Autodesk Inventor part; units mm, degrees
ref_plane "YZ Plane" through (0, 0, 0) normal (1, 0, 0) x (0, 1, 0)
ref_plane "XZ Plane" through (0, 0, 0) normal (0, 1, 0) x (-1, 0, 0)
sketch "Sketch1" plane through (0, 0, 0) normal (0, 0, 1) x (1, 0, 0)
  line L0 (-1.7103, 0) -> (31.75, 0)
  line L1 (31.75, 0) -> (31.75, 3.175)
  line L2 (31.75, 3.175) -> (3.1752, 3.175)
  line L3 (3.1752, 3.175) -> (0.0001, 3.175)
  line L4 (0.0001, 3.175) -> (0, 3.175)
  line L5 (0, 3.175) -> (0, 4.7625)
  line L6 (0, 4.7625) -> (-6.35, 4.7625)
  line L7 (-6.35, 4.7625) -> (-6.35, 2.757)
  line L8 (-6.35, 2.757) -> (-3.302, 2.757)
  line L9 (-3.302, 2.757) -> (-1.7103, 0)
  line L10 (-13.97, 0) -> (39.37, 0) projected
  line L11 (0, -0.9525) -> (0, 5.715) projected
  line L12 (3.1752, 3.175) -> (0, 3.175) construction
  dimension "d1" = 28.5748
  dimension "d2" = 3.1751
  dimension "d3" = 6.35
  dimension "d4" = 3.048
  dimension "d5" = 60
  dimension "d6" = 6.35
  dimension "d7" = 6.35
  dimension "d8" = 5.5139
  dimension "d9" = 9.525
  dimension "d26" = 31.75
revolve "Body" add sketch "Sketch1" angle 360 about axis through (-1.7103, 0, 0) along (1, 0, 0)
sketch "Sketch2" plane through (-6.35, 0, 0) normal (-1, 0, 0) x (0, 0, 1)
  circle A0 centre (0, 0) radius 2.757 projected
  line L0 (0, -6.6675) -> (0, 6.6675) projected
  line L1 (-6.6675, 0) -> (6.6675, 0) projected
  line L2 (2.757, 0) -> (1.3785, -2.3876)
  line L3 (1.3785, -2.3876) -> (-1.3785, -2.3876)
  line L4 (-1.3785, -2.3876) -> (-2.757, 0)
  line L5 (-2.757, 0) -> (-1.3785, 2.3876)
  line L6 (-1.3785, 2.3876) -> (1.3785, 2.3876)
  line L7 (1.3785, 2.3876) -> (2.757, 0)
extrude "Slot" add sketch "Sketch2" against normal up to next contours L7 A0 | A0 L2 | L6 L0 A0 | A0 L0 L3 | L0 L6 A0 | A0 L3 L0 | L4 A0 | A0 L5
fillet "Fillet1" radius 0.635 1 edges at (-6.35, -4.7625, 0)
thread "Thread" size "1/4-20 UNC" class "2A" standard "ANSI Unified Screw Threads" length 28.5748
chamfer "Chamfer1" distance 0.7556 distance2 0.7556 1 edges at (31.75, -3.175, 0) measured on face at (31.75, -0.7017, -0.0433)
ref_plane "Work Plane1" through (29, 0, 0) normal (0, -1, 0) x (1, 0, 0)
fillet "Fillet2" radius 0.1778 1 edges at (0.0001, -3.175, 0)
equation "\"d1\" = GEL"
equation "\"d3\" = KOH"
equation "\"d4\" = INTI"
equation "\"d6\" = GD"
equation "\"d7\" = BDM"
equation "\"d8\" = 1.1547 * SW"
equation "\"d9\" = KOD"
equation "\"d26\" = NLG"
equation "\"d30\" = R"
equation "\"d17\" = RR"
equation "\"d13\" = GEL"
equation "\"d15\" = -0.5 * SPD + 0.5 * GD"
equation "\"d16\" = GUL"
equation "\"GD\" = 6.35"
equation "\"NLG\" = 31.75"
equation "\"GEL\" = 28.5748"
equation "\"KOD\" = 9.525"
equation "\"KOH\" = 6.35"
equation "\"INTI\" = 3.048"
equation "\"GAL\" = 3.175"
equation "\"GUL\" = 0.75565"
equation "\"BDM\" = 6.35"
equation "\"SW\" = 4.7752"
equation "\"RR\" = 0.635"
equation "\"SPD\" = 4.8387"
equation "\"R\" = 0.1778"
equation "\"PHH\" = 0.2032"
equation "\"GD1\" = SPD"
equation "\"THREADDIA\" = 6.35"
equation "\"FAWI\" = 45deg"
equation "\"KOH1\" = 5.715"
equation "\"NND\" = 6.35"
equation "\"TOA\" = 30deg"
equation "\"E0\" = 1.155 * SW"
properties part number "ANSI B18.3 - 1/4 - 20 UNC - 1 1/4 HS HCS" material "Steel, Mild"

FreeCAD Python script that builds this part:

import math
import FreeCAD as App
import Part
import Sketcher
from FreeCAD import Vector
Q = App.Units.Quantity


def edges_at(feature, points):
    """Names of the edges that pass closest to the given points."""
    edges = feature.Shape.Edges
    near = lambda p: min(range(len(edges)), key=lambda i: edges[i].distToShape(Part.Vertex(*p))[0])
    return sorted({f"Edge{near(p) + 1}" for p in points})

doc = App.newDocument("Part")
params = doc.addObject("Spreadsheet::Sheet", "Params")
for row, (alias, value) in enumerate([
    ("sketch1_width", "1.25 in"),
    ("sketch1_width2", "0.25 in"),
    ("sketch1_width3", "0.12 in"),
    ("sketch1_height", "0.125 in"),
    ("sketch1_height2", "0.0625 in"),
    ("revolution_angle", "360 deg"),
    ("fillet_radius", "0.025 in"),
    ("chamfer_size", "0.7556 mm"),
    ("chamfer_size2", "0.7556 mm"),
    ("fillet2_radius", "0.007 in"),
], start=1):
    params.set(f"A{row}", alias)
    params.set(f"B{row}", "=" + value)
    params.setAlias(f"B{row}", alias)

body = doc.addObject("PartDesign::Body", "Body")

# Sketch on XY plane
sketch1 = body.newObject("Sketcher::SketchObject", "Sketch")
sketch1.AttachmentSupport = (doc.getObject("XY_Plane"), [""])
sketch1.MapMode = "FlatFace"
sketch1.addGeometry(Part.LineSegment(Vector(-3.302, 2.757, 0), Vector(-1.7103, 0, 0)), False)
sketch1.addGeometry(Part.LineSegment(Vector(-1.7103, 0, 0), Vector(31.75, 0, 0)), False)
sketch1.addGeometry(Part.LineSegment(Vector(31.75, 0, 0), Vector(31.75, 3.175, 0)), False)
sketch1.addGeometry(Part.LineSegment(Vector(31.75, 3.175, 0), Vector(0.0001, 3.175, 0)), False)
sketch1.addGeometry(Part.LineSegment(Vector(0.0001, 3.175, 0), Vector(0, 4.7625, 0)), False)
sketch1.addGeometry(Part.LineSegment(Vector(0, 4.7625, 0), Vector(-6.35, 4.7625, 0)), False)
sketch1.addGeometry(Part.LineSegment(Vector(-6.35, 4.7625, 0), Vector(-6.35, 2.757, 0)), False)
sketch1.addGeometry(Part.LineSegment(Vector(-6.35, 2.757, 0), Vector(-3.302, 2.757, 0)), False)
sketch1.addConstraint(Sketcher.Constraint("Coincident", 0, 2, 1, 1))
sketch1.addConstraint(Sketcher.Constraint("Coincident", 1, 2, 2, 1))
sketch1.addConstraint(Sketcher.Constraint("Coincident", 2, 2, 3, 1))
sketch1.addConstraint(Sketcher.Constraint("Coincident", 3, 2, 4, 1))
sketch1.addConstraint(Sketcher.Constraint("Coincident", 4, 2, 5, 1))
sketch1.addConstraint(Sketcher.Constraint("Coincident", 5, 2, 6, 1))
sketch1.addConstraint(Sketcher.Constraint("Coincident", 6, 2, 7, 1))
sketch1.addConstraint(Sketcher.Constraint("Coincident", 7, 2, 0, 1))
sketch1.addConstraint(Sketcher.Constraint("Horizontal", 1))
sketch1.addConstraint(Sketcher.Constraint("Vertical", 2))
sketch1.addConstraint(Sketcher.Constraint("Horizontal", 3))
sketch1.addConstraint(Sketcher.Constraint("Vertical", 4))
sketch1.addConstraint(Sketcher.Constraint("Horizontal", 5))
sketch1.addConstraint(Sketcher.Constraint("Vertical", 6))
sketch1.addConstraint(Sketcher.Constraint("Horizontal", 7))
sketch1.addConstraint(Sketcher.Constraint("PointOnObject", 0, 2, -1))
sketch1.addConstraint(Sketcher.Constraint("PointOnObject", 3, 2, -2))
sketch1.addConstraint(Sketcher.Constraint("DistanceX", 3, 2, 3, 1, Q("1.25 in")))
sketch1.addConstraint(Sketcher.Constraint("DistanceX", 5, 2, 5, 1, Q("0.25 in")))
sketch1.addConstraint(Sketcher.Constraint("DistanceX", 7, 1, 7, 2, Q("0.12 in")))
sketch1.addConstraint(Sketcher.Constraint("DistanceY", 2, 1, 2, 2, Q("0.125 in")))
sketch1.addConstraint(Sketcher.Constraint("Angle", 0, Q("-60.0009 deg")))
sketch1.addConstraint(Sketcher.Constraint("DistanceY", 4, 1, 4, 2, Q("0.0625 in")))
sketch1.addConstraint(Sketcher.Constraint("DistanceX", 1, 1, 1, 2, Q("33.4603 mm")))
sketch1.setExpression("Constraints[17]", "Params.sketch1_width")
sketch1.setExpression("Constraints[18]", "Params.sketch1_width2")
sketch1.setExpression("Constraints[19]", "Params.sketch1_width3")
sketch1.setExpression("Constraints[20]", "Params.sketch1_height")
sketch1.setExpression("Constraints[22]", "Params.sketch1_height2")
revolution = body.newObject("PartDesign::Revolution", "Revolution")
revolution.Profile = sketch1
revolution.ReferenceAxis = (sketch1, ["H_Axis"])
revolution.setExpression("Angle", "Params.revolution_angle")

# Sketch on YZ plane
sketch2 = body.newObject("Sketcher::SketchObject", "Sketch001")
sketch2.AttachmentSupport = (doc.getObject("YZ_Plane"), [""])
sketch2.MapMode = "FlatFace"
sketch2.AttachmentOffset = App.Placement(Vector(0, 0, -0.25 * 25.4), App.Rotation())
sketch2.addGeometry(Part.LineSegment(Vector(2.3876, 1.3785, 0), Vector(0, 2.757, 0)), False)
sketch2.addGeometry(Part.ArcOfCircle(Part.Circle(Vector(0, 0, 0), Vector(0, 0, 1), 2.757), math.radians(30.000333), math.radians(90)), False)
sketch2.addGeometry(Part.ArcOfCircle(Part.Circle(Vector(0, 0, 0), Vector(0, 0, 1), 2.757), math.radians(90), math.radians(149.999667)), False)
sketch2.addGeometry(Part.LineSegment(Vector(0, 2.757, 0), Vector(-2.3876, 1.3785, 0)), False)
sketch2.addGeometry(Part.ArcOfCircle(Part.Circle(Vector(0, 0, 0), Vector(0, 0, 1), 2.757), math.radians(-30.000333), math.radians(30.000333)), False)
sketch2.addGeometry(Part.LineSegment(Vector(2.3876, 1.3785, 0), Vector(2.3876, -1.3785, 0)), False)
sketch2.addGeometry(Part.LineSegment(Vector(-2.3876, 1.3785, 0), Vector(-2.3876, -1.3785, 0)), False)
sketch2.addGeometry(Part.ArcOfCircle(Part.Circle(Vector(0, 0, 0), Vector(0, 0, 1), 2.757), math.radians(149.999667), math.radians(210.000333)), False)
sketch2.addGeometry(Part.LineSegment(Vector(-2.3876, -1.3785, 0), Vector(0, -2.757, 0)), False)
sketch2.addGeometry(Part.ArcOfCircle(Part.Circle(Vector(0, 0, 0), Vector(0, 0, 1), 2.757), math.radians(-149.999667), math.radians(-90)), False)
sketch2.addGeometry(Part.ArcOfCircle(Part.Circle(Vector(0, 0, 0), Vector(0, 0, 1), 2.757), math.radians(-90), math.radians(-30.000333)), False)
sketch2.addGeometry(Part.LineSegment(Vector(0, -2.757, 0), Vector(2.3876, -1.3785, 0)), False)
sketch2.addConstraint(Sketcher.Constraint("Coincident", 0, 1, 1, 1))
sketch2.addConstraint(Sketcher.Constraint("Coincident", 1, 2, 0, 2))
sketch2.addConstraint(Sketcher.Constraint("Coincident", 2, 1, 3, 1))
sketch2.addConstraint(Sketcher.Constraint("Coincident", 3, 2, 2, 2))
sketch2.addConstraint(Sketcher.Constraint("Coincident", 4, 1, 5, 2))
sketch2.addConstraint(Sketcher.Constraint("Coincident", 5, 1, 4, 2))
sketch2.addConstraint(Sketcher.Constraint("Coincident", 6, 1, 7, 1))
sketch2.addConstraint(Sketcher.Constraint("Coincident", 7, 2, 6, 2))
sketch2.addConstraint(Sketcher.Constraint("Coincident", 8, 1, 9, 1))
sketch2.addConstraint(Sketcher.Constraint("Coincident", 9, 2, 8, 2))
sketch2.addConstraint(Sketcher.Constraint("Coincident", 10, 1, 11, 1))
sketch2.addConstraint(Sketcher.Constraint("Coincident", 11, 2, 10, 2))
sketch2.addConstraint(Sketcher.Constraint("Vertical", 5))
sketch2.addConstraint(Sketcher.Constraint("Vertical", 6))
sketch2.addConstraint(Sketcher.Constraint("Coincident", 1, 3, -1, 1))
sketch2.addConstraint(Sketcher.Constraint("Coincident", 2, 3, -1, 1))
sketch2.addConstraint(Sketcher.Constraint("Coincident", 4, 3, -1, 1))
sketch2.addConstraint(Sketcher.Constraint("Coincident", 7, 3, -1, 1))
sketch2.addConstraint(Sketcher.Constraint("Coincident", 9, 3, -1, 1))
sketch2.addConstraint(Sketcher.Constraint("Coincident", 10, 3, -1, 1))
sketch2.addConstraint(Sketcher.Constraint("Coincident", 2, 1, 1, 2))
sketch2.addConstraint(Sketcher.Constraint("Coincident", 5, 1, 0, 1))
sketch2.addConstraint(Sketcher.Constraint("Coincident", 6, 1, 3, 2))
sketch2.addConstraint(Sketcher.Constraint("Coincident", 8, 1, 7, 2))
sketch2.addConstraint(Sketcher.Constraint("Coincident", 10, 1, 9, 2))
sketch2.addConstraint(Sketcher.Constraint("PointOnObject", 1, 2, -2))
sketch2.addConstraint(Sketcher.Constraint("PointOnObject", 9, 2, -2))
sketch2.addConstraint(Sketcher.Constraint("Parallel", 0, 8))
sketch2.addConstraint(Sketcher.Constraint("Parallel", 3, 11))
sketch2.addConstraint(Sketcher.Constraint("Angle", 0, Q("149.9997 deg")))
sketch2.addConstraint(Sketcher.Constraint("Radius", 1, Q("2.757 mm")))
pad1 = body.newObject("PartDesign::Pad", "Pad")
pad1.Profile = sketch2
pad1.Type = "UpToFirst"
doc.recompute()

fillet = body.newObject("PartDesign::Fillet", "Fillet")
fillet.Base = (pad1, edges_at(pad1, [(-6.35, -4.763, 0)]))
fillet.setExpression("Radius", "Params.fillet_radius")
doc.recompute()

chamfer = body.newObject("PartDesign::Chamfer", "Chamfer")
chamfer.Base = (fillet, edges_at(fillet, [(31.75, -3.175, 0)]))
chamfer.ChamferType = "Two distances"
chamfer.setExpression("Size", "Params.chamfer_size")
chamfer.setExpression("Size2", "Params.chamfer_size2")
doc.recompute()

fillet2 = body.newObject("PartDesign::Fillet", "Fillet001")
fillet2.Base = (chamfer, edges_at(chamfer, [(0, -3.175, 0)]))
fillet2.setExpression("Radius", "Params.fillet2_radius")

doc.recompute()
